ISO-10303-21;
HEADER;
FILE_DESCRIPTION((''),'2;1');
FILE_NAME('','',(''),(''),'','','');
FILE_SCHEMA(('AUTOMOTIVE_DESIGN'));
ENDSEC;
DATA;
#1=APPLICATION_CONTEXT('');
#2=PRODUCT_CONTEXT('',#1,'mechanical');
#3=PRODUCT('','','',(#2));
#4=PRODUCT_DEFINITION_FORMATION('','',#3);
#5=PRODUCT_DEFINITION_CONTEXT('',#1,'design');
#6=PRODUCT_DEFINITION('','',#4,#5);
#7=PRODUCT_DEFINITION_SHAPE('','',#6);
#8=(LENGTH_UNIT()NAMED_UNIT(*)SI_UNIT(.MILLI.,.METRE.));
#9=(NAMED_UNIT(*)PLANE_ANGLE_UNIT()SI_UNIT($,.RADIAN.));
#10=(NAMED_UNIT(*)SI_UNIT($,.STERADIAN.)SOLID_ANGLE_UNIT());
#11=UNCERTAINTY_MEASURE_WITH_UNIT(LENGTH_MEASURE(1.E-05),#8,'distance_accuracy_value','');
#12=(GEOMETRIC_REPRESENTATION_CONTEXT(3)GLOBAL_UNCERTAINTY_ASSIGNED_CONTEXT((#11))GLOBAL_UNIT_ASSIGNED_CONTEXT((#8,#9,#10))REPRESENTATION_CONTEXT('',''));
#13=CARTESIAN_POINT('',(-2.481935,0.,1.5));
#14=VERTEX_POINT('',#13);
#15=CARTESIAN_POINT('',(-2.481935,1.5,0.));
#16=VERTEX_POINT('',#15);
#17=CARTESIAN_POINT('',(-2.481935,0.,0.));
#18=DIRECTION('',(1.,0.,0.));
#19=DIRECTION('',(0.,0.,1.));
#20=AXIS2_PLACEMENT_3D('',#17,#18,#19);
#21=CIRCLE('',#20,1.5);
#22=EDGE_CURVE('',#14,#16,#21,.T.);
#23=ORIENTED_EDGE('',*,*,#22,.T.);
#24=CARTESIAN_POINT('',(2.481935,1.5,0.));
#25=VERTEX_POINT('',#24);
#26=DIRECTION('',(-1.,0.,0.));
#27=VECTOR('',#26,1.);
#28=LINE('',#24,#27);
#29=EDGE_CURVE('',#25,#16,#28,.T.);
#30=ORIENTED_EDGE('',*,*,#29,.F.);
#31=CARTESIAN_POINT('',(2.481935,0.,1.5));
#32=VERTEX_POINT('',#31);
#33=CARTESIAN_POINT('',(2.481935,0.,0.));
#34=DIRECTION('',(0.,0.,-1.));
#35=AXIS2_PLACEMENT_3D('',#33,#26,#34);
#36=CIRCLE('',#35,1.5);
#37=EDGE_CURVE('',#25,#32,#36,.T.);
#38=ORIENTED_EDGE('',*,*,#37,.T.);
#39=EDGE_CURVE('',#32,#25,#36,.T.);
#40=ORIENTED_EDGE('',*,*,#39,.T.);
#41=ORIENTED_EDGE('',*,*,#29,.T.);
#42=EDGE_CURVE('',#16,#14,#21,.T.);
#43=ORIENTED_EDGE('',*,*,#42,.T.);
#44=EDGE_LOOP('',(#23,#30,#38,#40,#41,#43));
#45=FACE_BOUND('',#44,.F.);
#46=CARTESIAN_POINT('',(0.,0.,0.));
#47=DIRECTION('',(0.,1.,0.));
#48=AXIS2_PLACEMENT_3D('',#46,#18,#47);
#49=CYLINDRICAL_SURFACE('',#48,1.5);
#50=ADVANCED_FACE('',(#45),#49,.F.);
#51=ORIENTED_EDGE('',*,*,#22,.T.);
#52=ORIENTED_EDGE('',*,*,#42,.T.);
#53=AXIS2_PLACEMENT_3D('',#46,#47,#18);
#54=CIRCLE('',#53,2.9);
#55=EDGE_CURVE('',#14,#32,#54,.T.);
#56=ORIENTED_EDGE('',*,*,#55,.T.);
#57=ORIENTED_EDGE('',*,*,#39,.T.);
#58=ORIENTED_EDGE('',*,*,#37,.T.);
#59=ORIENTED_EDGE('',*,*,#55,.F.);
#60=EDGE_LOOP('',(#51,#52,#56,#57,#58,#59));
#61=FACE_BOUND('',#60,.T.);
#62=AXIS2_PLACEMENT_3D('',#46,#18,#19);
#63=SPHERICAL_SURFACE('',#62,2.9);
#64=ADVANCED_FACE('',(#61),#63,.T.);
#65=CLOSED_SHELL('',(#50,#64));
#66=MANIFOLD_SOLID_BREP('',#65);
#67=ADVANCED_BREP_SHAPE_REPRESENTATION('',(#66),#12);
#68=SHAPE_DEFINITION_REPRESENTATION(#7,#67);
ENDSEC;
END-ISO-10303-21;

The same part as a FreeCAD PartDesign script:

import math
import FreeCAD as App
import Part
import Sketcher

doc = App.newDocument("Part")
body = doc.addObject("PartDesign::Body", "Body")

sketch1 = doc.addObject("Sketcher::SketchObject", "Sketch")
body.addObject(sketch1)
sketch1.AttachmentSupport = (doc.XZ_Plane, [""])
sketch1.MapMode = "FlatFace"
sketch1.addGeometry([
    Part.ArcOfCircle(Part.Circle(App.Vector(0, 0, 0), App.Vector(0, 0, 1), 2.9), math.radians(0), math.radians(180)),
    Part.LineSegment(App.Vector(-2.9, 0, 0), App.Vector(2.9, 0, 0)),
], False)
sketch1.addConstraint([
    Sketcher.Constraint("Coincident", 0, 1, 1, 2),
    Sketcher.Constraint("Coincident", 1, 1, 0, 2),
    Sketcher.Constraint("Horizontal", 1),
    Sketcher.Constraint("Coincident", 0, 3, -1, 1),
    Sketcher.Constraint("PointOnObject", 0, 1, -1),
    Sketcher.Constraint("Radius", 0, 2.9),
])
revolution = doc.addObject("PartDesign::Revolution", "Revolution")
body.addObject(revolution)
revolution.Profile = sketch1
revolution.ReferenceAxis = (sketch1, ["H_Axis"])
revolution.Angle = 360

sketch2 = doc.addObject("Sketcher::SketchObject", "Sketch001")
body.addObject(sketch2)
sketch2.AttachmentSupport = (doc.YZ_Plane, [""])
sketch2.MapMode = "FlatFace"
sketch2.addGeometry(Part.Circle(App.Vector(0, 0, 0), App.Vector(0, 0, 1), 1.5), False)
sketch2.addConstraint([
    Sketcher.Constraint("Coincident", 0, 3, -1, 1),
    Sketcher.Constraint("Diameter", 0, 3.0),
])
pocket1 = doc.addObject("PartDesign::Pocket", "Pocket")
body.addObject(pocket1)
pocket1.Profile = sketch2
pocket1.Length = 9.9239
pocket1.Midplane = True

doc.recompute()
